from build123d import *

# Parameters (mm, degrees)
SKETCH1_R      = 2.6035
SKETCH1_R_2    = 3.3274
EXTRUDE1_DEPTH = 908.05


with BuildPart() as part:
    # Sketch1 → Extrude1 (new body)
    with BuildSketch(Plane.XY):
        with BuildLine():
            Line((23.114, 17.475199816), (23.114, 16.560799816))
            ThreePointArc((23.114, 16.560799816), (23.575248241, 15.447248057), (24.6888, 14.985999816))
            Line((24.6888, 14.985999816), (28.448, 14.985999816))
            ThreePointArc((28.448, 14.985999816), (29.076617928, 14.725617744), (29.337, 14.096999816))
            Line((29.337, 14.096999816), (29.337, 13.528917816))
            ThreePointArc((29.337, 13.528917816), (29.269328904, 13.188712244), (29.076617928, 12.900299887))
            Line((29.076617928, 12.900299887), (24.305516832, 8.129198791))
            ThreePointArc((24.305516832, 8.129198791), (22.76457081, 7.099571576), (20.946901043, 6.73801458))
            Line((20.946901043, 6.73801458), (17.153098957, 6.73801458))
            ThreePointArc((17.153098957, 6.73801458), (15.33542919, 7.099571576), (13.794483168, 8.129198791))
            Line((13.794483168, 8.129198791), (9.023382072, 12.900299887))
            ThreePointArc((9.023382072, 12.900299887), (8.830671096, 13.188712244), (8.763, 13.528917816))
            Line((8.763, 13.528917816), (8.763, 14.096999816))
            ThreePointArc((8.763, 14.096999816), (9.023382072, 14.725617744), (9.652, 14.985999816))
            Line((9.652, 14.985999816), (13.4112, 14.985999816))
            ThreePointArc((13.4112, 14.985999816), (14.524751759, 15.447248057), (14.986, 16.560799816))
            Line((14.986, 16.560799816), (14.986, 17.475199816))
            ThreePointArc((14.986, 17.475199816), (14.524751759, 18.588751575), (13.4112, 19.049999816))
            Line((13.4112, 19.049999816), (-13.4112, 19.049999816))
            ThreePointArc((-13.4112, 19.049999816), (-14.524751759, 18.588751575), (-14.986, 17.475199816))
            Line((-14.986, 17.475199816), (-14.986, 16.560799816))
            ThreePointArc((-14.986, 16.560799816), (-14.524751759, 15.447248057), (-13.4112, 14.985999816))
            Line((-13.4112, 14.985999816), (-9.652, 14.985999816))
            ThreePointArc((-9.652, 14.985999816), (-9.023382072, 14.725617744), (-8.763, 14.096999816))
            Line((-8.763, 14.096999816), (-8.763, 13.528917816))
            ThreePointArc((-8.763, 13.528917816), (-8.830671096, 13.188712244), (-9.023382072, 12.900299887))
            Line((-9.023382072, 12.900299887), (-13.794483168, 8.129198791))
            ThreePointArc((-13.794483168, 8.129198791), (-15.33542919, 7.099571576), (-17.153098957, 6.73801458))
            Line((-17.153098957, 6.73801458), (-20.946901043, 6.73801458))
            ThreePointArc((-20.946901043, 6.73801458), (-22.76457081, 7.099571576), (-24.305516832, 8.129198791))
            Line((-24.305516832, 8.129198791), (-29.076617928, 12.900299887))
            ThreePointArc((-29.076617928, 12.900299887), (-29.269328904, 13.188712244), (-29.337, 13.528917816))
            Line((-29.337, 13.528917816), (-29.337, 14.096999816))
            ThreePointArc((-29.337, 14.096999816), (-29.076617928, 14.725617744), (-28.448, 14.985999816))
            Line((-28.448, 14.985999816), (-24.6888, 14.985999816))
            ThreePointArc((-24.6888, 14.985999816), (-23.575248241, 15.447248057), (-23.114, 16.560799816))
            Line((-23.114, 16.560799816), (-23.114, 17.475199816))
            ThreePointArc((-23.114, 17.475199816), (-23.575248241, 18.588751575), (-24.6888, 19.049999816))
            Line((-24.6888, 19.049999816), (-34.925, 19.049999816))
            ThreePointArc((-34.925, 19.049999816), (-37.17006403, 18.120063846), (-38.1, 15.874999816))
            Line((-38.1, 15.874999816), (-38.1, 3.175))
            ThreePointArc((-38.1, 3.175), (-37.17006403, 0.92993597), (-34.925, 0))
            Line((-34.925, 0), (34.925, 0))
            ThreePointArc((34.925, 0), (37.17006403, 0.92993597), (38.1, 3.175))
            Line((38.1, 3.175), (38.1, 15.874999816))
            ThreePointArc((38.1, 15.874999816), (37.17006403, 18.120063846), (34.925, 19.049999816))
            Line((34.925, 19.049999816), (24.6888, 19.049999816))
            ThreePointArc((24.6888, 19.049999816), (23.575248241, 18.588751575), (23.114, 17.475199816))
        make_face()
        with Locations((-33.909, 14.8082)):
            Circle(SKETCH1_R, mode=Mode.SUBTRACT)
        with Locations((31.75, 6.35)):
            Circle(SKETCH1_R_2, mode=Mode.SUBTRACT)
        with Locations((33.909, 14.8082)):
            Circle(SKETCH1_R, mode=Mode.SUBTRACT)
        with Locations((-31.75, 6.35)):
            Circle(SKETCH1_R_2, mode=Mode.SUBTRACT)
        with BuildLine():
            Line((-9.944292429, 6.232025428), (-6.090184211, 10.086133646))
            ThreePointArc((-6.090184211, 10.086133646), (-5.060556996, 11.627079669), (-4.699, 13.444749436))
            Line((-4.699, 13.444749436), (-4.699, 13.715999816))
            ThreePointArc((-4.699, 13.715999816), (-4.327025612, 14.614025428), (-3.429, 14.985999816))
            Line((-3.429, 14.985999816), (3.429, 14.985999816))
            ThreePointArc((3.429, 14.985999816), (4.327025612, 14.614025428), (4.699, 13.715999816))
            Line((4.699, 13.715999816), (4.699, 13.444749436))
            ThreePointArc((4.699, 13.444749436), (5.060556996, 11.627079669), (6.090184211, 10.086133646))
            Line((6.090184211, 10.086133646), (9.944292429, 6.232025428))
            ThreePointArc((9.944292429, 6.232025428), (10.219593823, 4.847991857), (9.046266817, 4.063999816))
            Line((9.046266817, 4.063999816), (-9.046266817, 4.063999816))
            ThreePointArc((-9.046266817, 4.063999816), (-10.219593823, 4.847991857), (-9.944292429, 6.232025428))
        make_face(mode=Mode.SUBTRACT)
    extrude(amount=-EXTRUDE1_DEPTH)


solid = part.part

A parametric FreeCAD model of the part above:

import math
import FreeCAD as App
import Part
import Sketcher

V = App.Vector
Q = App.Units.Quantity

doc = App.newDocument("Part")
body = doc.addObject("PartDesign::Body", "Body")

# Sketch on XY plane
sketch1 = doc.addObject("Sketcher::SketchObject", "Sketch")
body.addObject(sketch1)
sketch1.AttachmentSupport = (doc.XY_Plane, [""])
sketch1.MapMode = "FlatFace"
sketch1.addGeometry([
    Part.LineSegment(V(23.11, 17.48, 0), V(23.11, 16.56, 0)),  # 0
    Part.ArcOfCircle(Part.Circle(V(24.69, 16.56, 0), V(0, 0, 1), 1.57), math.radians(180), math.radians(270)),  # 1
    Part.LineSegment(V(24.69, 14.99, 0), V(28.45, 14.99, 0)),  # 2
    Part.ArcOfCircle(Part.Circle(V(28.45, 14.1, 0), V(0, 0, 1), 0.89), math.radians(0), math.radians(90)),  # 3
    Part.LineSegment(V(29.34, 14.1, 0), V(29.34, 13.53, 0)),  # 4
    Part.ArcOfCircle(Part.Circle(V(28.45, 13.53, 0), V(0, 0, 1), 0.89), math.radians(-45), math.radians(0)),  # 5
    Part.LineSegment(V(29.08, 12.9, 0), V(24.31, 8.13, 0)),  # 6
    Part.ArcOfCircle(Part.Circle(V(20.95, 11.49, 0), V(0, 0, 1), 4.75), math.radians(-90), math.radians(-45)),  # 7
    Part.LineSegment(V(20.95, 6.74, 0), V(17.15, 6.74, 0)),  # 8
    Part.ArcOfCircle(Part.Circle(V(17.15, 11.49, 0), V(0, 0, 1), 4.75), math.radians(-135), math.radians(-90)),  # 9
    Part.LineSegment(V(13.79, 8.13, 0), V(9.02, 12.9, 0)),  # 10
    Part.ArcOfCircle(Part.Circle(V(9.65, 13.53, 0), V(0, 0, 1), 0.89), math.radians(-180), math.radians(-135)),  # 11
    Part.LineSegment(V(8.76, 13.53, 0), V(8.76, 14.1, 0)),  # 12
    Part.ArcOfCircle(Part.Circle(V(9.65, 14.1, 0), V(0, 0, 1), 0.89), math.radians(90), math.radians(180)),  # 13
    Part.LineSegment(V(9.65, 14.99, 0), V(13.41, 14.99, 0)),  # 14
    Part.ArcOfCircle(Part.Circle(V(13.41, 16.56, 0), V(0, 0, 1), 1.57), math.radians(-90), math.radians(0)),  # 15
    Part.LineSegment(V(14.99, 16.56, 0), V(14.99, 17.48, 0)),  # 16
    Part.ArcOfCircle(Part.Circle(V(13.41, 17.48, 0), V(0, 0, 1), 1.57), math.radians(0), math.radians(90)),  # 17
    Part.LineSegment(V(13.41, 19.05, 0), V(-13.41, 19.05, 0)),  # 18
    Part.ArcOfCircle(Part.Circle(V(-13.41, 17.48, 0), V(0, 0, 1), 1.57), math.radians(90), math.radians(180)),  # 19
    Part.LineSegment(V(-14.99, 17.48, 0), V(-14.99, 16.56, 0)),  # 20
    Part.ArcOfCircle(Part.Circle(V(-13.41, 16.56, 0), V(0, 0, 1), 1.57), math.radians(180), math.radians(270)),  # 21
    Part.LineSegment(V(-13.41, 14.99, 0), V(-9.65, 14.99, 0)),  # 22
    Part.ArcOfCircle(Part.Circle(V(-9.65, 14.1, 0), V(0, 0, 1), 0.89), math.radians(0), math.radians(90)),  # 23
    Part.LineSegment(V(-8.76, 14.1, 0), V(-8.76, 13.53, 0)),  # 24
    Part.ArcOfCircle(Part.Circle(V(-9.65, 13.53, 0), V(0, 0, 1), 0.89), math.radians(-45), math.radians(0)),  # 25
    Part.LineSegment(V(-9.02, 12.9, 0), V(-13.79, 8.13, 0)),  # 26
    Part.ArcOfCircle(Part.Circle(V(-17.15, 11.49, 0), V(0, 0, 1), 4.75), math.radians(-90), math.radians(-45)),  # 27
    Part.LineSegment(V(-17.15, 6.74, 0), V(-20.95, 6.74, 0)),  # 28
    Part.ArcOfCircle(Part.Circle(V(-20.95, 11.49, 0), V(0, 0, 1), 4.75), math.radians(-135), math.radians(-90)),  # 29
    Part.LineSegment(V(-24.31, 8.13, 0), V(-29.08, 12.9, 0)),  # 30
    Part.ArcOfCircle(Part.Circle(V(-28.45, 13.53, 0), V(0, 0, 1), 0.89), math.radians(-180), math.radians(-135)),  # 31
    Part.LineSegment(V(-29.34, 13.53, 0), V(-29.34, 14.1, 0)),  # 32
    Part.ArcOfCircle(Part.Circle(V(-28.45, 14.1, 0), V(0, 0, 1), 0.89), math.radians(90), math.radians(180)),  # 33
    Part.LineSegment(V(-28.45, 14.99, 0), V(-24.69, 14.99, 0)),  # 34
    Part.ArcOfCircle(Part.Circle(V(-24.69, 16.56, 0), V(0, 0, 1), 1.57), math.radians(-90), math.radians(0)),  # 35
    Part.LineSegment(V(-23.11, 16.56, 0), V(-23.11, 17.48, 0)),  # 36
    Part.ArcOfCircle(Part.Circle(V(-24.69, 17.48, 0), V(0, 0, 1), 1.57), math.radians(0), math.radians(90)),  # 37
    Part.LineSegment(V(-24.69, 19.05, 0), V(-34.92, 19.05, 0)),  # 38
    Part.ArcOfCircle(Part.Circle(V(-34.92, 15.87, 0), V(0, 0, 1), 3.18), math.radians(90), math.radians(180)),  # 39
    Part.LineSegment(V(-38.1, 15.87, 0), V(-38.1, 3.17, 0)),  # 40
    Part.ArcOfCircle(Part.Circle(V(-34.92, 3.18, 0), V(0, 0, 1), 3.18), math.radians(-180), math.radians(-90)),  # 41
    Part.LineSegment(V(-34.92, 0, 0), V(34.92, 0, 0)),  # 42
    Part.ArcOfCircle(Part.Circle(V(34.92, 3.18, 0), V(0, 0, 1), 3.18), math.radians(-90), math.radians(0)),  # 43
    Part.LineSegment(V(38.1, 3.17, 0), V(38.1, 15.87, 0)),  # 44
    Part.ArcOfCircle(Part.Circle(V(34.92, 15.87, 0), V(0, 0, 1), 3.18), math.radians(0), math.radians(90)),  # 45
    Part.LineSegment(V(34.92, 19.05, 0), V(24.69, 19.05, 0)),  # 46
    Part.ArcOfCircle(Part.Circle(V(24.69, 17.48, 0), V(0, 0, 1), 1.57), math.radians(90), math.radians(180)),  # 47
    Part.Circle(V(-31.75, 6.35, 0), V(0, 0, 1), 3.33),  # 48
    Part.Circle(V(31.75, 6.35, 0), V(0, 0, 1), 3.33),  # 49
    Part.ArcOfCircle(Part.Circle(V(-9.05, 5.33, 0), V(0, 0, 1), 1.27), math.radians(135), math.radians(270)),  # 50
    Part.LineSegment(V(-9.94, 6.23, 0), V(-6.09, 10.09, 0)),  # 51
    Part.ArcOfCircle(Part.Circle(V(-9.45, 13.44, 0), V(0, 0, 1), 4.75), math.radians(-45), math.radians(0)),  # 52
    Part.LineSegment(V(-4.7, 13.44, 0), V(-4.7, 13.72, 0)),  # 53
    Part.ArcOfCircle(Part.Circle(V(-3.43, 13.72, 0), V(0, 0, 1), 1.27), math.radians(90), math.radians(180)),  # 54
    Part.LineSegment(V(-3.43, 14.99, 0), V(3.43, 14.99, 0)),  # 55
    Part.ArcOfCircle(Part.Circle(V(3.43, 13.72, 0), V(0, 0, 1), 1.27), math.radians(0), math.radians(90)),  # 56
    Part.LineSegment(V(4.7, 13.72, 0), V(4.7, 13.44, 0)),  # 57
    Part.ArcOfCircle(Part.Circle(V(9.45, 13.44, 0), V(0, 0, 1), 4.75), math.radians(180), math.radians(225)),  # 58
    Part.LineSegment(V(6.09, 10.09, 0), V(9.94, 6.23, 0)),  # 59
    Part.ArcOfCircle(Part.Circle(V(9.05, 5.33, 0), V(0, 0, 1), 1.27), math.radians(-90), math.radians(45)),  # 60
    Part.LineSegment(V(9.05, 4.06, 0), V(-9.05, 4.06, 0)),  # 61
    Part.Circle(V(-33.91, 14.81, 0), V(0, 0, 1), 2.6),  # 62
    Part.Circle(V(33.91, 14.81, 0), V(0, 0, 1), 2.6),  # 63
], False)
sketch1.addConstraint([
    Sketcher.Constraint("Tangent", 0, 2, 1, 1),
    Sketcher.Constraint("Tangent", 1, 2, 2, 1),
    Sketcher.Constraint("Tangent", 2, 2, 3, 2),
    Sketcher.Constraint("Tangent", 3, 1, 4, 1),
    Sketcher.Constraint("Tangent", 4, 2, 5, 2),
    Sketcher.Constraint("Tangent", 5, 1, 6, 1),
    Sketcher.Constraint("Tangent", 6, 2, 7, 2),
    Sketcher.Constraint("Tangent", 7, 1, 8, 1),
    Sketcher.Constraint("Tangent", 8, 2, 9, 2),
    Sketcher.Constraint("Tangent", 9, 1, 10, 1),
    Sketcher.Constraint("Tangent", 10, 2, 11, 2),
    Sketcher.Constraint("Tangent", 11, 1, 12, 1),
    Sketcher.Constraint("Tangent", 12, 2, 13, 2),
    Sketcher.Constraint("Tangent", 13, 1, 14, 1),
    Sketcher.Constraint("Tangent", 14, 2, 15, 1),
    Sketcher.Constraint("Tangent", 15, 2, 16, 1),
    Sketcher.Constraint("Tangent", 16, 2, 17, 1),
    Sketcher.Constraint("Tangent", 17, 2, 18, 1),
    Sketcher.Constraint("Tangent", 18, 2, 19, 1),
    Sketcher.Constraint("Tangent", 19, 2, 20, 1),
    Sketcher.Constraint("Tangent", 20, 2, 21, 1),
    Sketcher.Constraint("Tangent", 21, 2, 22, 1),
    Sketcher.Constraint("Tangent", 22, 2, 23, 2),
    Sketcher.Constraint("Tangent", 23, 1, 24, 1),
    Sketcher.Constraint("Tangent", 24, 2, 25, 2),
    Sketcher.Constraint("Tangent", 25, 1, 26, 1),
    Sketcher.Constraint("Tangent", 26, 2, 27, 2),
    Sketcher.Constraint("Tangent", 27, 1, 28, 1),
    Sketcher.Constraint("Tangent", 28, 2, 29, 2),
    Sketcher.Constraint("Tangent", 29, 1, 30, 1),
    Sketcher.Constraint("Tangent", 30, 2, 31, 2),
    Sketcher.Constraint("Tangent", 31, 1, 32, 1),
    Sketcher.Constraint("Tangent", 32, 2, 33, 2),
    Sketcher.Constraint("Tangent", 33, 1, 34, 1),
    Sketcher.Constraint("Tangent", 34, 2, 35, 1),
    Sketcher.Constraint("Tangent", 35, 2, 36, 1),
    Sketcher.Constraint("Tangent", 36, 2, 37, 1),
    Sketcher.Constraint("Tangent", 37, 2, 38, 1),
    Sketcher.Constraint("Tangent", 38, 2, 39, 1),
    Sketcher.Constraint("Tangent", 39, 2, 40, 1),
    Sketcher.Constraint("Tangent", 40, 2, 41, 1),
    Sketcher.Constraint("Tangent", 41, 2, 42, 1),
    Sketcher.Constraint("Tangent", 42, 2, 43, 1),
    Sketcher.Constraint("Tangent", 43, 2, 44, 1),
    Sketcher.Constraint("Tangent", 44, 2, 45, 1),
    Sketcher.Constraint("Tangent", 45, 2, 46, 1),
    Sketcher.Constraint("Tangent", 46, 2, 47, 1),
    Sketcher.Constraint("Tangent", 47, 2, 0, 1),
    Sketcher.Constraint("Tangent", 50, 1, 51, 1),
    Sketcher.Constraint("Tangent", 51, 2, 52, 1),
    Sketcher.Constraint("Tangent", 52, 2, 53, 1),
    Sketcher.Constraint("Tangent", 53, 2, 54, 2),
    Sketcher.Constraint("Tangent", 54, 1, 55, 1),
    Sketcher.Constraint("Tangent", 55, 2, 56, 2),
    Sketcher.Constraint("Tangent", 56, 1, 57, 1),
    Sketcher.Constraint("Tangent", 57, 2, 58, 1),
    Sketcher.Constraint("Tangent", 58, 2, 59, 1),
    Sketcher.Constraint("Tangent", 59, 2, 60, 2),
    Sketcher.Constraint("Tangent", 60, 1, 61, 1),
    Sketcher.Constraint("Tangent", 61, 2, 50, 2),
    Sketcher.Constraint("Vertical", 0),
    Sketcher.Constraint("Horizontal", 2),
    Sketcher.Constraint("Vertical", 4),
    Sketcher.Constraint("Horizontal", 8),
    Sketcher.Constraint("Vertical", 12),
    Sketcher.Constraint("Horizontal", 14),
    Sketcher.Constraint("Vertical", 16),
    Sketcher.Constraint("Horizontal", 18),
    Sketcher.Constraint("Vertical", 20),
    Sketcher.Constraint("Horizontal", 22),
    Sketcher.Constraint("Vertical", 24),
    Sketcher.Constraint("Horizontal", 28),
    Sketcher.Constraint("Vertical", 32),
    Sketcher.Constraint("Horizontal", 34),
    Sketcher.Constraint("Vertical", 36),
    Sketcher.Constraint("Horizontal", 38),
    Sketcher.Constraint("Vertical", 40),
    Sketcher.Constraint("Horizontal", 42),
    Sketcher.Constraint("Vertical", 44),
    Sketcher.Constraint("Horizontal", 46),
    Sketcher.Constraint("Vertical", 53),
    Sketcher.Constraint("Horizontal", 55),
    Sketcher.Constraint("Vertical", 57),
    Sketcher.Constraint("Horizontal", 61),
    Sketcher.Constraint("Equal", 3, 5),
    Sketcher.Constraint("Equal", 7, 9),
    Sketcher.Constraint("Equal", 5, 11),
    Sketcher.Constraint("Equal", 11, 13),
    Sketcher.Constraint("Equal", 1, 15),
    Sketcher.Constraint("Equal", 15, 17),
    Sketcher.Constraint("Equal", 17, 19),
    Sketcher.Constraint("Equal", 19, 21),
    Sketcher.Constraint("Equal", 13, 23),
    Sketcher.Constraint("Equal", 23, 25),
    Sketcher.Constraint("Equal", 9, 27),
    Sketcher.Constraint("Equal", 27, 29),
    Sketcher.Constraint("Equal", 25, 31),
    Sketcher.Constraint("Equal", 31, 33),
    Sketcher.Constraint("Equal", 21, 35),
    Sketcher.Constraint("Equal", 35, 37),
    Sketcher.Constraint("Equal", 39, 41),
    Sketcher.Constraint("Equal", 41, 43),
    Sketcher.Constraint("Equal", 43, 45),
    Sketcher.Constraint("Equal", 37, 47),
    Sketcher.Constraint("Equal", 48, 49),
    Sketcher.Constraint("Equal", 29, 52),
    Sketcher.Constraint("Equal", 50, 54),
    Sketcher.Constraint("Equal", 54, 56),
    Sketcher.Constraint("Equal", 52, 58),
    Sketcher.Constraint("Equal", 56, 60),
    Sketcher.Constraint("Equal", 62, 63),
    Sketcher.Constraint("Symmetric", 41, 2, 42, 2, -1, 1),
    Sketcher.Constraint("Symmetric", 15, 3, 21, 3, -2),
    Sketcher.Constraint("Symmetric", 11, 3, 25, 3, -2),
    Sketcher.Constraint("Symmetric", 9, 3, 27, 3, -2),
    Sketcher.Constraint("Symmetric", 5, 3, 31, 3, -2),
    Sketcher.Constraint("Symmetric", 1, 3, 35, 3, -2),
    Sketcher.Constraint("Symmetric", 48, 3, 49, 3, -2),
    Sketcher.Constraint("Symmetric", 52, 3, 58, 3, -2),
    Sketcher.Constraint("Symmetric", 62, 3, 63, 3, -2),
    Sketcher.Constraint("Perpendicular", 6, 10),
    Sketcher.Constraint("Perpendicular", 10, 26),
    Sketcher.Constraint("Perpendicular", 26, 30),
    Sketcher.Constraint("Perpendicular", 30, 51),
    Sketcher.Constraint("Perpendicular", 51, 59),
    Sketcher.Constraint("Horizontal", 5, 3, 11, 3),
    Sketcher.Constraint("Horizontal", 3, 3, 13, 3),
    Sketcher.Constraint("Horizontal", 19, 3, 37, 3),
    Sketcher.Constraint("Horizontal", 39, 3, 45, 3),
    Sketcher.Constraint("Horizontal", 34, 2, 54, 1),
    Sketcher.Constraint("Equal", 2, 14),
    Sketcher.Constraint("Radius", 50, Q("0.05 in")),
    Sketcher.Constraint("Diameter", 48, Q("0.262 in")),
    Sketcher.Constraint("Diameter", 62, Q("0.205 in")),
    Sketcher.Constraint("DistanceY", 40, 2, 40, 1, Q("0.5 in")),
    Sketcher.Constraint("Radius", 1, Q("0.062 in")),
    Sketcher.Constraint("Radius", 3, Q("0.035 in")),
    Sketcher.Constraint("Radius", 7, Q("0.187 in")),
    Sketcher.Constraint("Radius", 39, Q("0.125 in")),
    Sketcher.Constraint("DistanceX", 42, 1, 42, 2, Q("2.75 in")),
    Sketcher.Constraint("DistanceX", 55, 1, 55, 2, Q("0.27 in")),
    Sketcher.Constraint("DistanceX", 2, 1, 2, 2, Q("0.148 in")),
    Sketcher.Constraint("DistanceX", 18, 2, 18, 1, Q("1.056 in")),
    Sketcher.Constraint("DistanceX", 38, 2, 38, 1, Q("0.403 in")),
    Sketcher.Constraint("DistanceY", 0, 2, 0, 1, Q("0.036 in")),
    Sketcher.Constraint("DistanceX", 48, 3, -1, 1, Q("1.25 in")),
    Sketcher.Constraint("DistanceY", -1, 1, 48, 3, Q("0.25 in")),
    Sketcher.Constraint("DistanceY", -1, 1, 50, 3, Q("0.21 in")),
    Sketcher.Constraint("DistanceX", 62, 3, -1, 1, Q("1.335 in")),
    Sketcher.Constraint("DistanceY", -1, 1, 62, 3, Q("0.583 in")),
    Sketcher.Constraint("DistanceY", 53, 1, 53, 2, 0.27125),
    Sketcher.Constraint("DistanceX", -1, 1, 7, 3, 20.946901),
    Sketcher.Constraint("DistanceY", -1, 1, 5, 1, 12.9003),
])
pad1 = doc.addObject("PartDesign::Pad", "Pad")
body.addObject(pad1)
pad1.Profile = sketch1
pad1.Length = Q("35.75 in")
pad1.Reversed = True

doc.recompute()
